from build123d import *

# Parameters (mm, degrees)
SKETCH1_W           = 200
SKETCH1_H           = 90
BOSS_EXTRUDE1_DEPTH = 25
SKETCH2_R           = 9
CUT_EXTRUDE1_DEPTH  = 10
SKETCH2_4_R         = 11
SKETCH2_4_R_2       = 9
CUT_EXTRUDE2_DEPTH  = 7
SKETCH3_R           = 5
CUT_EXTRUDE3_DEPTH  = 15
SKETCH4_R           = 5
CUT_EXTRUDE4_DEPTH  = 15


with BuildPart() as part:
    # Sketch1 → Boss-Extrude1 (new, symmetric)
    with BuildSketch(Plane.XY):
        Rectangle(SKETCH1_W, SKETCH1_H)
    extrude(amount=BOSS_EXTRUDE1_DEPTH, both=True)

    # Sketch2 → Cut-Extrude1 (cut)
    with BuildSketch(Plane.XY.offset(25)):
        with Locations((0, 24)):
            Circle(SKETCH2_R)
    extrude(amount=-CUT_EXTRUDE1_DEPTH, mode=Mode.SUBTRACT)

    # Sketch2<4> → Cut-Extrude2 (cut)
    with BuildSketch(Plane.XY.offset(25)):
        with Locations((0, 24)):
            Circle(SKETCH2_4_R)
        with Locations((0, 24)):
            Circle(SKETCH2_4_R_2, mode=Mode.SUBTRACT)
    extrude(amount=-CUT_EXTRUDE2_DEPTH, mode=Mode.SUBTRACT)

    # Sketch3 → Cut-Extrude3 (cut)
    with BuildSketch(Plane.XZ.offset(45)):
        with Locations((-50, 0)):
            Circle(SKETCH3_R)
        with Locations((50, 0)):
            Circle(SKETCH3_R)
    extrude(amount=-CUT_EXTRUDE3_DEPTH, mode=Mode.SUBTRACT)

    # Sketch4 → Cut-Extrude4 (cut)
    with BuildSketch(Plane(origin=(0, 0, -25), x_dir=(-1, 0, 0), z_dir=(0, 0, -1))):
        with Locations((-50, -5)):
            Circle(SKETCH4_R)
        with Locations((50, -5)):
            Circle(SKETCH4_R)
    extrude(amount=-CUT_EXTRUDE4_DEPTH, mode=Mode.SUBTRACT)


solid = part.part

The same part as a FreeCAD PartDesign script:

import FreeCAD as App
import Part
import Sketcher

V = App.Vector
Q = App.Units.Quantity


def add_polygon(sketch, points):
    """Adds a closed chain of lines whose ends are joined by coincident constraints."""
    first, n = sketch.GeometryCount, len(points)
    for a, b in zip(points, points[1:] + points[:1]):
        sketch.addGeometry(Part.LineSegment(App.Vector(*a, 0), App.Vector(*b, 0)), False)
    for i in range(n):
        sketch.addConstraint(Sketcher.Constraint("Coincident", first + i, 2, first + (i + 1) % n, 1))

doc = App.newDocument("Part")
body = doc.addObject("PartDesign::Body", "Body")

sketch1 = body.newObject("Sketcher::SketchObject", "Sketch")
sketch1.AttachmentSupport = (doc.getObject("XY_Plane"), [""])
sketch1.MapMode = "FlatFace"
add_polygon(sketch1, [(-100, 45), (-100, -45), (100, -45), (100, 45)])
sketch1.addConstraint(Sketcher.Constraint("Vertical", 0))
sketch1.addConstraint(Sketcher.Constraint("Horizontal", 1))
sketch1.addConstraint(Sketcher.Constraint("Vertical", 2))
sketch1.addConstraint(Sketcher.Constraint("Horizontal", 3))
sketch1.addConstraint(Sketcher.Constraint("Symmetric", 0, 2, 2, 2, -1, 1))
sketch1.addConstraint(Sketcher.Constraint("DistanceX", 1, 1, 1, 2, Q("200 mm")))
sketch1.addConstraint(Sketcher.Constraint("DistanceY", 0, 2, 0, 1, Q("90 mm")))
pad1 = body.newObject("PartDesign::Pad", "Pad")
pad1.Profile = sketch1
pad1.Length = 50
pad1.Midplane = True

sketch2 = body.newObject("Sketcher::SketchObject", "Sketch001")
sketch2.AttachmentSupport = (doc.getObject("XY_Plane"), [""])
sketch2.MapMode = "FlatFace"
sketch2.AttachmentOffset = App.Placement(V(0, 0, 25), App.Rotation())
sketch2.addGeometry(Part.Circle(V(0, 24, 0), V(0, 0, 1), 9), False)
sketch2.addConstraint(Sketcher.Constraint("PointOnObject", 0, 3, -2))
sketch2.addConstraint(Sketcher.Constraint("Diameter", 0, Q("18 mm")))
sketch2.addConstraint(Sketcher.Constraint("DistanceY", -1, 1, 0, 3, Q("24 mm")))
pocket1 = body.newObject("PartDesign::Pocket", "Pocket")
pocket1.Profile = sketch2
pocket1.Length = 10

sketch3 = body.newObject("Sketcher::SketchObject", "Sketch002")
sketch3.AttachmentSupport = (doc.getObject("XY_Plane"), [""])
sketch3.MapMode = "FlatFace"
sketch3.AttachmentOffset = App.Placement(V(0, 0, 25), App.Rotation())
sketch3.addGeometry(Part.Circle(V(0, 24, 0), V(0, 0, 1), 11), False)
sketch3.addGeometry(Part.Circle(V(0, 24, 0), V(0, 0, 1), 9), False)
sketch3.addConstraint(Sketcher.Constraint("Coincident", 1, 3, 0, 3))
sketch3.addConstraint(Sketcher.Constraint("PointOnObject", 0, 3, -2))
sketch3.addConstraint(Sketcher.Constraint("Diameter", 0, Q("22 mm")))
sketch3.addConstraint(Sketcher.Constraint("Diameter", 1, Q("18 mm")))
sketch3.addConstraint(Sketcher.Constraint("DistanceY", -1, 1, 0, 3, Q("24 mm")))
pocket2 = body.newObject("PartDesign::Pocket", "Pocket001")
pocket2.Profile = sketch3
pocket2.Length = 7

sketch4 = body.newObject("Sketcher::SketchObject", "Sketch003")
sketch4.AttachmentSupport = (doc.getObject("XZ_Plane"), [""])
sketch4.MapMode = "FlatFace"
sketch4.AttachmentOffset = App.Placement(V(0, 0, 45), App.Rotation())
sketch4.addGeometry(Part.Circle(V(-50, 0, 0), V(0, 0, 1), 5), False)
sketch4.addGeometry(Part.Circle(V(50, 0, 0), V(0, 0, 1), 5), False)
sketch4.addConstraint(Sketcher.Constraint("Equal", 0, 1))
sketch4.addConstraint(Sketcher.Constraint("Symmetric", 0, 3, 1, 3, -1, 1))
sketch4.addConstraint(Sketcher.Constraint("PointOnObject", 0, 3, -1))
sketch4.addConstraint(Sketcher.Constraint("Diameter", 0, Q("10 mm")))
sketch4.addConstraint(Sketcher.Constraint("DistanceX", 0, 3, -1, 1, Q("50 mm")))
pocket3 = body.newObject("PartDesign::Pocket", "Pocket002")
pocket3.Profile = sketch4
pocket3.Length = 15

sketch5 = body.newObject("Sketcher::SketchObject", "Sketch004")
sketch5.AttachmentSupport = (doc.getObject("XY_Plane"), [""])
sketch5.MapMode = "FlatFace"
sketch5.AttachmentOffset = App.Placement(V(0, 0, -25), App.Rotation())
sketch5.addGeometry(Part.Circle(V(50, -5, 0), V(0, 0, 1), 5), False)
sketch5.addGeometry(Part.Circle(V(-50, -5, 0), V(0, 0, 1), 5), False)
sketch5.addConstraint(Sketcher.Constraint("Equal", 0, 1))
sketch5.addConstraint(Sketcher.Constraint("Symmetric", 0, 3, 1, 3, -2))
sketch5.addConstraint(Sketcher.Constraint("Diameter", 0, Q("10 mm")))
sketch5.addConstraint(Sketcher.Constraint("DistanceX", -1, 1, 0, 3, Q("50 mm")))
sketch5.addConstraint(Sketcher.Constraint("DistanceY", 0, 3, -1, 1, Q("5 mm")))
pocket4 = body.newObject("PartDesign::Pocket", "Pocket003")
pocket4.Profile = sketch5
pocket4.Length = 15
pocket4.Reversed = True

doc.recompute()
